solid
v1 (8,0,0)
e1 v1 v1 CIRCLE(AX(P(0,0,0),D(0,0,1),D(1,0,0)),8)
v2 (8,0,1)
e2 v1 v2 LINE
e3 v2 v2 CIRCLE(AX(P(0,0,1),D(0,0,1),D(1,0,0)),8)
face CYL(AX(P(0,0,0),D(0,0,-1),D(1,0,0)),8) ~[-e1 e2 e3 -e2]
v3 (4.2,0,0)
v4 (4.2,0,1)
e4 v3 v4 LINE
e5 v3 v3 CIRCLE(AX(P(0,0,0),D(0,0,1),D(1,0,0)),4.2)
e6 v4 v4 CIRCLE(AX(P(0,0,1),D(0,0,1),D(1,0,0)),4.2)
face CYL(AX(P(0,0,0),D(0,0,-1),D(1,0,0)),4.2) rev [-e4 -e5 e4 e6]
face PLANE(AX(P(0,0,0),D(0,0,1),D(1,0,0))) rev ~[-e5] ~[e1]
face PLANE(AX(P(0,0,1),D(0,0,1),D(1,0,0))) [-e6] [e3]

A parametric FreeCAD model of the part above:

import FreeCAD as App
import Part
import Sketcher
from FreeCAD import Vector
Q = App.Units.Quantity

doc = App.newDocument("Part")
body = doc.addObject("PartDesign::Body", "Body")

sketch1 = body.newObject("Sketcher::SketchObject", "Sketch")
sketch1.AttachmentSupport = (doc.getObject("XY_Plane"), [""])
sketch1.MapMode = "FlatFace"
sketch1.addGeometry(Part.Circle(Vector(0, 0, 0), Vector(0, 0, 1), 8), False)
sketch1.addGeometry(Part.Circle(Vector(0, 0, 0), Vector(0, 0, 1), 4.2), False)
sketch1.addConstraint(Sketcher.Constraint("Coincident", 0, 3, -1, 1))
sketch1.addConstraint(Sketcher.Constraint("Coincident", 1, 3, -1, 1))
sketch1.addConstraint(Sketcher.Constraint("Diameter", 0, Q("16 mm")))
sketch1.addConstraint(Sketcher.Constraint("Diameter", 1, Q("8.4 mm")))
pad1 = body.newObject("PartDesign::Pad", "Pad")
pad1.Profile = sketch1
pad1.Length = 1

doc.recompute()
